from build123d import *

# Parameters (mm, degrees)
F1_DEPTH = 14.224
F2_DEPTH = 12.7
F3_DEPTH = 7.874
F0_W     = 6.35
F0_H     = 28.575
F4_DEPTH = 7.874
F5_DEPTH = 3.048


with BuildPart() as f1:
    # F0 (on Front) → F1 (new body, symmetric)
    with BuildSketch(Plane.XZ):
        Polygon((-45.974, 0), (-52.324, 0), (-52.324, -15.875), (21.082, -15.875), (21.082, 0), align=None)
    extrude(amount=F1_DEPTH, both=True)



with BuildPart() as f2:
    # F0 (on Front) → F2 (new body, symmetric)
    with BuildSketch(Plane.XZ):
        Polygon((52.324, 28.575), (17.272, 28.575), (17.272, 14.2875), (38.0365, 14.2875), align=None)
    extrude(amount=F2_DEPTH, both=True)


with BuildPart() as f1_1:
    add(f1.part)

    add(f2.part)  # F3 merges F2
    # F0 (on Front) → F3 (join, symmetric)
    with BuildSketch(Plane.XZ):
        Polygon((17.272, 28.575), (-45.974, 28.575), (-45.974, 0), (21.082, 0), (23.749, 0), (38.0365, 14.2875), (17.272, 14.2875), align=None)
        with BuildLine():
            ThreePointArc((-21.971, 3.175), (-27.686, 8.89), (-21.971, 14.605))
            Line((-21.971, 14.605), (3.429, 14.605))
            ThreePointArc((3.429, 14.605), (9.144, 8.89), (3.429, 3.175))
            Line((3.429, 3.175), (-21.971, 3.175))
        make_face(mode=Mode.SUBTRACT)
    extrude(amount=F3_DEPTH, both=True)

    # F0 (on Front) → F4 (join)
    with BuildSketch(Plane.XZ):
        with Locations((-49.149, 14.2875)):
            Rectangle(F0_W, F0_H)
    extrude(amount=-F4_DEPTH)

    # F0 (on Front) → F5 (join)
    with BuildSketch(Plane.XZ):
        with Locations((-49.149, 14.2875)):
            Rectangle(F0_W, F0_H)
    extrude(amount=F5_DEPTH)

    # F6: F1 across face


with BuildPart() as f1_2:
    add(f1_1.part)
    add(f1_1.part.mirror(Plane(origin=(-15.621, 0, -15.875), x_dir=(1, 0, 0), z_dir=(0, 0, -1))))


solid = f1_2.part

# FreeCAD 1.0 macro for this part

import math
import FreeCAD as App
import Part
import Sketcher

V = App.Vector
Q = App.Units.Quantity

doc = App.newDocument("Part")
body = doc.addObject("PartDesign::Body", "Body")

# Sketch on XZ plane
sketch1 = doc.addObject("Sketcher::SketchObject", "Sketch")
body.addObject(sketch1)
sketch1.AttachmentSupport = (doc.XZ_Plane, [""])
sketch1.MapMode = "FlatFace"
sketch1.addGeometry([
    Part.LineSegment(V(-52, 0, 0), V(-52, -16, 0)),
    Part.LineSegment(V(-52, -16, 0), V(21, -16, 0)),
    Part.LineSegment(V(21, -16, 0), V(21, 0, 0)),
    Part.LineSegment(V(21, 0, 0), V(-52, 0, 0)),
], False)
sketch1.addConstraint([
    Sketcher.Constraint("Coincident", 0, 2, 1, 1),
    Sketcher.Constraint("Coincident", 1, 2, 2, 1),
    Sketcher.Constraint("Coincident", 2, 2, 3, 1),
    Sketcher.Constraint("Coincident", 3, 2, 0, 1),
    Sketcher.Constraint("Vertical", 0),
    Sketcher.Constraint("Horizontal", 1),
    Sketcher.Constraint("Vertical", 2),
    Sketcher.Constraint("Horizontal", 3),
    Sketcher.Constraint("PointOnObject", 2, 2, -1),
    Sketcher.Constraint("DistanceX", 1, 1, 1, 2, Q("2.89 in")),
    Sketcher.Constraint("DistanceY", 0, 2, 0, 1, Q("0.625 in")),
    Sketcher.Constraint("DistanceX", 0, 2, -1, 1, Q("2.06 in")),
])
pad1 = doc.addObject("PartDesign::Pad", "Pad")
body.addObject(pad1)
pad1.Profile = sketch1
pad1.Length = Q("1.12 in")
pad1.Midplane = True
body2 = doc.addObject("PartDesign::Body", "Body001")

# Sketch on XZ plane
sketch2 = doc.addObject("Sketcher::SketchObject", "Sketch001")
body2.addObject(sketch2)
sketch2.AttachmentSupport = (doc.getObject("XZ_Plane001"), [""])
sketch2.MapMode = "FlatFace"
sketch2.addGeometry([
    Part.LineSegment(V(52, 29, 0), V(17, 29, 0)),
    Part.LineSegment(V(17, 29, 0), V(17, 14, 0)),
    Part.LineSegment(V(17, 14, 0), V(38, 14, 0)),
    Part.LineSegment(V(38, 14, 0), V(52, 29, 0)),
], False)
sketch2.addConstraint([
    Sketcher.Constraint("Coincident", 0, 2, 1, 1),
    Sketcher.Constraint("Coincident", 1, 2, 2, 1),
    Sketcher.Constraint("Coincident", 2, 2, 3, 1),
    Sketcher.Constraint("Coincident", 3, 2, 0, 1),
    Sketcher.Constraint("Horizontal", 0),
    Sketcher.Constraint("Vertical", 1),
    Sketcher.Constraint("Horizontal", 2),
    Sketcher.Constraint("Angle", 3, Q("45 deg")),
    Sketcher.Constraint("DistanceX", 0, 2, 0, 1, Q("1.38 in")),
    Sketcher.Constraint("DistanceY", 1, 2, 1, 1, Q("0.5625 in")),
    Sketcher.Constraint("DistanceX", -1, 1, 0, 2, Q("0.68 in")),
    Sketcher.Constraint("DistanceY", -1, 1, 0, 2, Q("1.125 in")),
])
pad2 = doc.addObject("PartDesign::Pad", "Pad001")
body2.addObject(pad2)
pad2.Profile = sketch2
pad2.Length = Q("1 in")
pad2.Midplane = True
body.AllowCompound = True
doc.recompute()

boolean = doc.addObject("PartDesign::Boolean", "Boolean")
body.addObject(boolean)
boolean.Type = "Fuse"
boolean.addObjects([body2])

# Sketch on XZ plane
sketch3 = doc.addObject("Sketcher::SketchObject", "Sketch002")
body.addObject(sketch3)
sketch3.AttachmentSupport = (doc.XZ_Plane, [""])
sketch3.MapMode = "FlatFace"
sketch3.addGeometry([
    Part.LineSegment(V(17, 29, 0), V(-46, 29, 0)),  # 0
    Part.LineSegment(V(-46, 29, 0), V(-46, 0, 0)),  # 1
    Part.LineSegment(V(-46, 0, 0), V(24, 0, 0)),  # 2
    Part.LineSegment(V(24, 0, 0), V(38, 14, 0)),  # 3
    Part.LineSegment(V(38, 14, 0), V(17, 14, 0)),  # 4
    Part.LineSegment(V(17, 14, 0), V(17, 29, 0)),  # 5
    Part.LineSegment(V(3, 3, 0), V(-22, 3, 0)),  # 6
    Part.ArcOfCircle(Part.Circle(V(-22, 9, 0), V(0, 0, 1), 6), math.radians(90), math.radians(270)),  # 7
    Part.LineSegment(V(-22, 15, 0), V(3, 15, 0)),  # 8
    Part.ArcOfCircle(Part.Circle(V(3, 9, 0), V(0, 0, 1), 6), math.radians(-90), math.radians(90)),  # 9
], False)
sketch3.addConstraint([
    Sketcher.Constraint("Coincident", 0, 2, 1, 1),
    Sketcher.Constraint("Coincident", 1, 2, 2, 1),
    Sketcher.Constraint("Coincident", 2, 2, 3, 1),
    Sketcher.Constraint("Coincident", 3, 2, 4, 1),
    Sketcher.Constraint("Coincident", 4, 2, 5, 1),
    Sketcher.Constraint("Coincident", 5, 2, 0, 1),
    Sketcher.Constraint("Tangent", 6, 2, 7, 2),
    Sketcher.Constraint("Tangent", 7, 1, 8, 1),
    Sketcher.Constraint("Tangent", 8, 2, 9, 2),
    Sketcher.Constraint("Tangent", 9, 1, 6, 1),
    Sketcher.Constraint("Horizontal", 0),
    Sketcher.Constraint("Vertical", 1),
    Sketcher.Constraint("Horizontal", 2),
    Sketcher.Constraint("Horizontal", 4),
    Sketcher.Constraint("Vertical", 5),
    Sketcher.Constraint("Horizontal", 6),
    Sketcher.Constraint("Horizontal", 8),
    Sketcher.Constraint("PointOnObject", 1, 2, -1),
    Sketcher.Constraint("DistanceX", 6, 2, 6, 1, Q("1 in")),
    Sketcher.Constraint("Angle", 3, Q("45 deg")),
    Sketcher.Constraint("Radius", 7, Q("0.225 in")),
    Sketcher.Constraint("DistanceY", 6, 2, 0, 2, Q("1 in")),
    Sketcher.Constraint("DistanceX", 0, 2, 0, 1, Q("2.49 in")),
    Sketcher.Constraint("DistanceX", 9, 3, 2, 2, Q("0.8 in")),
    Sketcher.Constraint("DistanceX", 2, 1, 2, 2, Q("2.745 in")),
    Sketcher.Constraint("DistanceY", 1, 2, 1, 1, Q("1.125 in")),
    Sketcher.Constraint("DistanceY", 5, 1, 5, 2, Q("0.5625 in")),
    Sketcher.Constraint("DistanceX", 0, 2, -1, 1, Q("1.81 in")),
])
pad3 = doc.addObject("PartDesign::Pad", "Pad002")
body.addObject(pad3)
pad3.Profile = sketch3
pad3.Length = Q("0.62 in")
pad3.Midplane = True

# Sketch on XZ plane
sketch4 = doc.addObject("Sketcher::SketchObject", "Sketch003")
body.addObject(sketch4)
sketch4.AttachmentSupport = (doc.XZ_Plane, [""])
sketch4.MapMode = "FlatFace"
sketch4.addGeometry([
    Part.LineSegment(V(-52, 29, 0), V(-52, 0, 0)),
    Part.LineSegment(V(-52, 0, 0), V(-46, 0, 0)),
    Part.LineSegment(V(-46, 0, 0), V(-46, 29, 0)),
    Part.LineSegment(V(-46, 29, 0), V(-52, 29, 0)),
], False)
sketch4.addConstraint([
    Sketcher.Constraint("Coincident", 0, 2, 1, 1),
    Sketcher.Constraint("Coincident", 1, 2, 2, 1),
    Sketcher.Constraint("Coincident", 2, 2, 3, 1),
    Sketcher.Constraint("Coincident", 3, 2, 0, 1),
    Sketcher.Constraint("Vertical", 0),
    Sketcher.Constraint("Horizontal", 1),
    Sketcher.Constraint("Vertical", 2),
    Sketcher.Constraint("Horizontal", 3),
    Sketcher.Constraint("PointOnObject", 0, 2, -1),
    Sketcher.Constraint("DistanceX", 1, 1, 1, 2, Q("0.25 in")),
    Sketcher.Constraint("DistanceY", 0, 2, 0, 1, Q("1.125 in")),
    Sketcher.Constraint("DistanceX", 0, 2, -1, 1, Q("2.06 in")),
])
pad4 = doc.addObject("PartDesign::Pad", "Pad003")
body.addObject(pad4)
pad4.Profile = sketch4
pad4.Length = Q("0.31 in")
pad4.Reversed = True

# Sketch on XZ plane
sketch5 = doc.addObject("Sketcher::SketchObject", "Sketch004")
body.addObject(sketch5)
sketch5.AttachmentSupport = (doc.XZ_Plane, [""])
sketch5.MapMode = "FlatFace"
sketch5.addGeometry([
    Part.LineSegment(V(-52, 29, 0), V(-52, 0, 0)),
    Part.LineSegment(V(-52, 0, 0), V(-46, 0, 0)),
    Part.LineSegment(V(-46, 0, 0), V(-46, 29, 0)),
    Part.LineSegment(V(-46, 29, 0), V(-52, 29, 0)),
], False)
sketch5.addConstraint([
    Sketcher.Constraint("Coincident", 0, 2, 1, 1),
    Sketcher.Constraint("Coincident", 1, 2, 2, 1),
    Sketcher.Constraint("Coincident", 2, 2, 3, 1),
    Sketcher.Constraint("Coincident", 3, 2, 0, 1),
    Sketcher.Constraint("Vertical", 0),
    Sketcher.Constraint("Horizontal", 1),
    Sketcher.Constraint("Vertical", 2),
    Sketcher.Constraint("Horizontal", 3),
    Sketcher.Constraint("PointOnObject", 0, 2, -1),
    Sketcher.Constraint("DistanceX", 1, 1, 1, 2, Q("0.25 in")),
    Sketcher.Constraint("DistanceY", 0, 2, 0, 1, Q("1.125 in")),
    Sketcher.Constraint("DistanceX", 0, 2, -1, 1, Q("2.06 in")),
])
pad5 = doc.addObject("PartDesign::Pad", "Pad004")
body.addObject(pad5)
pad5.Profile = sketch5
pad5.Length = Q("0.12 in")
body3 = doc.addObject("PartDesign::Body", "Body002")
doc.recompute()

body3.BaseFeature = body
doc.recompute()

mirroring = doc.addObject("Part::Mirroring", "Mirroring")
mirroring.Source = body
mirroring.Base = V(-15.621, 0, -15.875)
mirroring.Normal = V(0, 0, -1)
body4 = doc.addObject("PartDesign::Body", "Body003")
body4.BaseFeature = mirroring
boolean2 = doc.addObject("PartDesign::Boolean", "Boolean001")
body3.addObject(boolean2)
boolean2.Type = "Fuse"
boolean2.addObjects([body4])
doc.recompute()
mirroring.Visibility = False

doc.recompute()
